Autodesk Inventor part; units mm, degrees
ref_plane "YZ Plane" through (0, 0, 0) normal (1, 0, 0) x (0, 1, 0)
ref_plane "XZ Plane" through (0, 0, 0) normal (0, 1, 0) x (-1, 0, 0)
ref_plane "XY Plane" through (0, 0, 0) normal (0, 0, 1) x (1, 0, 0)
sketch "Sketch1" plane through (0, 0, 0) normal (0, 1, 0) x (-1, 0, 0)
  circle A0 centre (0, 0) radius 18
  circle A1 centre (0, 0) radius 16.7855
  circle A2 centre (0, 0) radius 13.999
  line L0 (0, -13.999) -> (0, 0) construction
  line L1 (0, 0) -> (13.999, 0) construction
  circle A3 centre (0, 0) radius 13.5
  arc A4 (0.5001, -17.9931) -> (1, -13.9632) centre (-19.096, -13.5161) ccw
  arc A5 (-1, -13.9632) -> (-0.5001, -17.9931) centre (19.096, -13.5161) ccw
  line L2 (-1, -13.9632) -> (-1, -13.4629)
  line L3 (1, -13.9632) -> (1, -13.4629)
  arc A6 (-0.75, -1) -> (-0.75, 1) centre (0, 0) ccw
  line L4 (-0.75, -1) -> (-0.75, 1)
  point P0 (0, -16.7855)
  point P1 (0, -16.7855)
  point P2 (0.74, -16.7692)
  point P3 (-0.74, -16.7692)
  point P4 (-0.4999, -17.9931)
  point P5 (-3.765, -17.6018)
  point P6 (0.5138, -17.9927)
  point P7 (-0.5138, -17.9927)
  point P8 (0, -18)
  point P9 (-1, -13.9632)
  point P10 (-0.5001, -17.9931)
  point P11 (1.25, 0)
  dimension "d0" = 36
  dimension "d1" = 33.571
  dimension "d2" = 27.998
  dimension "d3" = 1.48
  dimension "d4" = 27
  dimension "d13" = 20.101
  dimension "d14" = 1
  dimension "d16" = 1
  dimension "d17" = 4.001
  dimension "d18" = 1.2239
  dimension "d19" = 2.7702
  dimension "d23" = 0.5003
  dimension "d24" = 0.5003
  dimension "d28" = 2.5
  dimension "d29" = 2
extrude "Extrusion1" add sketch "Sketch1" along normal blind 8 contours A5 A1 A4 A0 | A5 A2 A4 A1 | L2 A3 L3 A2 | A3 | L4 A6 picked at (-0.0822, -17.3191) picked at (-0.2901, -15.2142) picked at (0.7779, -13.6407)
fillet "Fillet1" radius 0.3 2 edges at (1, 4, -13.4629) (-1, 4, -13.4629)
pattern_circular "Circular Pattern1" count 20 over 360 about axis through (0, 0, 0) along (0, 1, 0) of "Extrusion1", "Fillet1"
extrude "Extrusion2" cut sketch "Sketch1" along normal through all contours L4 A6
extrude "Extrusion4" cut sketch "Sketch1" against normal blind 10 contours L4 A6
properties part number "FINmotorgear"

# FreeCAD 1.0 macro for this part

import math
import FreeCAD as App
import Part
import Sketcher
from FreeCAD import Vector


def edges_at(feature, points):
    """Names of the edges that pass closest to the given points."""
    edges = feature.Shape.Edges
    near = lambda p: min(range(len(edges)), key=lambda i: edges[i].distToShape(Part.Vertex(*p))[0])
    return sorted({f"Edge{near(p) + 1}" for p in points})

doc = App.newDocument("Part")
body = doc.addObject("PartDesign::Body", "Body")

# Sketch on XZ plane
sketch1 = doc.addObject("Sketcher::SketchObject", "Sketch")
body.addObject(sketch1)
sketch1.AttachmentSupport = (doc.XZ_Plane, [""])
sketch1.MapMode = "FlatFace"
sketch1.addGeometry([
    Part.ArcOfCircle(Part.Circle(Vector(0, 0, 0), Vector(0, 0, 1), 18), math.radians(-91.592068), math.radians(-88.407932)),  # 0
    Part.ArcOfCircle(Part.Circle(Vector(19.092284, -13.516753, 0), Vector(0, 0, 1), 20.097244), math.radians(-178.727108), math.radians(-167.130314)),  # 1
    Part.LineSegment(Vector(-1, -13.9632, 0), Vector(-1, -13.4629, 0)),  # 2
    Part.ArcOfCircle(Part.Circle(Vector(0, 0, 0), Vector(0, 0, 1), 13.5), math.radians(-85.751974), math.radians(265.751974)),  # 3
    Part.LineSegment(Vector(1, -13.4629, 0), Vector(1, -13.9632, 0)),  # 4
    Part.ArcOfCircle(Part.Circle(Vector(-19.099764, -13.515825, 0), Vector(0, 0, 1), 20.104742), math.radians(-12.867516), math.radians(-1.275062)),  # 5
], False)
sketch1.addConstraint([
    Sketcher.Constraint("Coincident", 0, 1, 1, 2),
    Sketcher.Constraint("Coincident", 1, 1, 2, 1),
    Sketcher.Constraint("Coincident", 2, 2, 3, 2),
    Sketcher.Constraint("Coincident", 3, 1, 4, 1),
    Sketcher.Constraint("Coincident", 4, 2, 5, 2),
    Sketcher.Constraint("Coincident", 5, 1, 0, 2),
    Sketcher.Constraint("Vertical", 2),
    Sketcher.Constraint("Vertical", 4),
    Sketcher.Constraint("Coincident", 0, 3, -1, 1),
    Sketcher.Constraint("Coincident", 3, 3, -1, 1),
    Sketcher.Constraint("Symmetric", 1, 1, 4, 2, -2),
    Sketcher.Constraint("Radius", 0, 18.0),
    Sketcher.Constraint("Radius", 3, 13.5),
    Sketcher.Constraint("DistanceX", 1, 1, -1, 1, 1.0),
    Sketcher.Constraint("DistanceX", 0, 1, -1, 1, 0.5),
    Sketcher.Constraint("DistanceX", -1, 1, 5, 1, 0.5),
    Sketcher.Constraint("DistanceY", 2, 1, 2, 2, 0.5003),
    Sketcher.Constraint("Radius", 1, 20.0972),
    Sketcher.Constraint("Radius", 5, 20.1047),
])
pad1 = doc.addObject("PartDesign::Pad", "Pad")
body.addObject(pad1)
pad1.Profile = sketch1
pad1.Length = 8
pad1.Reversed = True
doc.recompute()

fillet = doc.addObject("PartDesign::Fillet", "Fillet")
body.addObject(fillet)
fillet.Base = (pad1, edges_at(pad1, [(1, 4, -13.463), (-1, 4, -13.463)]))
fillet.Radius = 0.3
doc.recompute()

polarpattern = doc.addObject("PartDesign::PolarPattern", "PolarPattern")
body.addObject(polarpattern)
polarpattern.Originals = [pad1, fillet]
polarpattern.Axis = (doc.Y_Axis, [""])
polarpattern.Angle = 360
polarpattern.Occurrences = 20
body.Tip = polarpattern

# Sketch on XZ plane
sketch2 = doc.addObject("Sketcher::SketchObject", "Sketch001")
body.addObject(sketch2)
sketch2.AttachmentSupport = (doc.XZ_Plane, [""])
sketch2.MapMode = "FlatFace"
sketch2.addGeometry([
    Part.LineSegment(Vector(0.75, 1, 0), Vector(0.75, -1, 0)),
    Part.ArcOfCircle(Part.Circle(Vector(0, 0, 0), Vector(0, 0, 1), 1.25), math.radians(53.130102), math.radians(306.869898)),
], False)
sketch2.addConstraint([
    Sketcher.Constraint("Coincident", 0, 1, 1, 1),
    Sketcher.Constraint("Coincident", 1, 2, 0, 2),
    Sketcher.Constraint("Vertical", 0),
    Sketcher.Constraint("Coincident", 1, 3, -1, 1),
    Sketcher.Constraint("DistanceY", 0, 2, 0, 1, 2.0),
    Sketcher.Constraint("Radius", 1, 1.25),
])
pocket1 = doc.addObject("PartDesign::Pocket", "Pocket")
body.addObject(pocket1)
pocket1.Profile = sketch2
pocket1.Type = "ThroughAll"

# Sketch on XZ plane
sketch3 = doc.addObject("Sketcher::SketchObject", "Sketch002")
body.addObject(sketch3)
sketch3.AttachmentSupport = (doc.XZ_Plane, [""])
sketch3.MapMode = "FlatFace"
sketch3.addGeometry([
    Part.LineSegment(Vector(0.75, 1, 0), Vector(0.75, -1, 0)),
    Part.ArcOfCircle(Part.Circle(Vector(0, 0, 0), Vector(0, 0, 1), 1.25), math.radians(53.130102), math.radians(306.869898)),
], False)
sketch3.addConstraint([
    Sketcher.Constraint("Coincident", 0, 1, 1, 1),
    Sketcher.Constraint("Coincident", 1, 2, 0, 2),
    Sketcher.Constraint("Vertical", 0),
    Sketcher.Constraint("Coincident", 1, 3, -1, 1),
    Sketcher.Constraint("DistanceY", 0, 2, 0, 1, 2.0),
    Sketcher.Constraint("Radius", 1, 1.25),
])
pocket2 = doc.addObject("PartDesign::Pocket", "Pocket001")
body.addObject(pocket2)
pocket2.Profile = sketch3
pocket2.Length = 10
pocket2.Reversed = True

doc.recompute()
